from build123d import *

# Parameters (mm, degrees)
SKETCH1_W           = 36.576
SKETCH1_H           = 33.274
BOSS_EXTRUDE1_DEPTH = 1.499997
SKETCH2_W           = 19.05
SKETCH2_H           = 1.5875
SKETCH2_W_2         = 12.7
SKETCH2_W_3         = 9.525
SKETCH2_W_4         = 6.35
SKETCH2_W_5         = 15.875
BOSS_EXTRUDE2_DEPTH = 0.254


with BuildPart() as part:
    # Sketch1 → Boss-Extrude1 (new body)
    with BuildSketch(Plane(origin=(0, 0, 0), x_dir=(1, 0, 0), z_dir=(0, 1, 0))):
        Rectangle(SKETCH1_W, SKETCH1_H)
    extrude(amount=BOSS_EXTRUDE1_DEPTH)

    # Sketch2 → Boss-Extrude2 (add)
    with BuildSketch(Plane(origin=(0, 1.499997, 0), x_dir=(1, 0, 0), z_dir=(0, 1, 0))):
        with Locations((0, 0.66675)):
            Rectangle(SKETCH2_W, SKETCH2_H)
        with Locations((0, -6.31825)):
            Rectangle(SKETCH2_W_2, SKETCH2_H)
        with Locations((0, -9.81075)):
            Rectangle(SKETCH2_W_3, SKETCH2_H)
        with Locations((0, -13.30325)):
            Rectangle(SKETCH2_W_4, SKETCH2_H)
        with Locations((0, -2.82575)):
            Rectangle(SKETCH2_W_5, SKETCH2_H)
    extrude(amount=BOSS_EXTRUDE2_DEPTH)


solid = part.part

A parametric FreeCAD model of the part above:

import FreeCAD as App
import Part
import Sketcher
from FreeCAD import Vector
Q = App.Units.Quantity


def add_polygon(sketch, points):
    """Adds a closed chain of lines whose ends are joined by coincident constraints."""
    first, n = sketch.GeometryCount, len(points)
    for a, b in zip(points, points[1:] + points[:1]):
        sketch.addGeometry(Part.LineSegment(App.Vector(*a, 0), App.Vector(*b, 0)), False)
    for i in range(n):
        sketch.addConstraint(Sketcher.Constraint("Coincident", first + i, 2, first + (i + 1) % n, 1))

doc = App.newDocument("Part")
body = doc.addObject("PartDesign::Body", "Body")

# Sketch on XZ plane
sketch1 = body.newObject("Sketcher::SketchObject", "Sketch")
sketch1.AttachmentSupport = (doc.getObject("XZ_Plane"), [""])
sketch1.MapMode = "FlatFace"
add_polygon(sketch1, [(-18.288, -16.637), (-18.288, 16.637), (18.288, 16.637), (18.288, -16.637)])  # lines 0-3
sketch1.addConstraint([
    Sketcher.Constraint("Vertical", 0),
    Sketcher.Constraint("Horizontal", 1),
    Sketcher.Constraint("Vertical", 2),
    Sketcher.Constraint("Horizontal", 3),
    Sketcher.Constraint("Symmetric", 0, 2, 2, 2, -1, 1),
    Sketcher.Constraint("DistanceX", 1, 1, 1, 2, Q("1.44 in")),
    Sketcher.Constraint("DistanceY", 0, 1, 0, 2, Q("1.31 in")),
])
pad1 = body.newObject("PartDesign::Pad", "Pad")
pad1.Profile = sketch1
pad1.Length = 1.499997
pad1.Reversed = True

# Sketch on XZ plane
sketch2 = body.newObject("Sketcher::SketchObject", "Sketch001")
sketch2.AttachmentSupport = (doc.getObject("XZ_Plane"), [""])
sketch2.MapMode = "FlatFace"
sketch2.AttachmentOffset = App.Placement(Vector(0, 0, -1.499997), App.Rotation())
add_polygon(sketch2, [(-9.525, -1.4605), (-9.525, 0.127), (9.525, 0.127), (9.525, -1.4605)])  # lines 0-3
add_polygon(sketch2, [(-6.35, 5.5245), (-6.35, 7.112), (6.35, 7.112), (6.35, 5.5245)])  # lines 4-7
add_polygon(sketch2, [(-4.7625, 9.017), (-4.7625, 10.6045), (4.7625, 10.6045), (4.7625, 9.017)])  # lines 8-11
add_polygon(sketch2, [(-3.175, 12.5095), (-3.175, 14.097), (3.175, 14.097), (3.175, 12.5095)])  # lines 12-15
add_polygon(sketch2, [(-7.9375, 2.032), (-7.9375, 3.6195), (7.9375, 3.6195), (7.9375, 2.032)])  # lines 16-19
sketch2.addConstraint([
    Sketcher.Constraint("Vertical", 0),
    Sketcher.Constraint("Horizontal", 1),
    Sketcher.Constraint("Vertical", 2),
    Sketcher.Constraint("Horizontal", 3),
    Sketcher.Constraint("Vertical", 4),
    Sketcher.Constraint("Horizontal", 5),
    Sketcher.Constraint("Vertical", 6),
    Sketcher.Constraint("Horizontal", 7),
    Sketcher.Constraint("Vertical", 8),
    Sketcher.Constraint("Horizontal", 9),
    Sketcher.Constraint("Vertical", 10),
    Sketcher.Constraint("Horizontal", 11),
    Sketcher.Constraint("Vertical", 12),
    Sketcher.Constraint("Horizontal", 13),
    Sketcher.Constraint("Vertical", 14),
    Sketcher.Constraint("Horizontal", 15),
    Sketcher.Constraint("Vertical", 16),
    Sketcher.Constraint("Horizontal", 17),
    Sketcher.Constraint("Vertical", 18),
    Sketcher.Constraint("Horizontal", 19),
    Sketcher.Constraint("Equal", 2, 4),
    Sketcher.Constraint("Equal", 6, 8),
    Sketcher.Constraint("Equal", 10, 12),
    Sketcher.Constraint("Equal", 14, 16),
    Sketcher.Constraint("DistanceX", 5, 1, 5, 2, Q("0.5 in")),
    Sketcher.Constraint("DistanceX", 1, 1, 1, 2, Q("0.75 in")),
    Sketcher.Constraint("DistanceX", 13, 1, 13, 2, Q("0.25 in")),
    Sketcher.Constraint("DistanceY", 7, 2, 8, 2, Q("0.2 in")),
    Sketcher.Constraint("DistanceY", 11, 2, 12, 2, Q("0.2 in")),
    Sketcher.Constraint("DistanceY", 3, 2, 16, 2, Q("0.2 in")),
    Sketcher.Constraint("DistanceY", 18, 2, 5, 2, Q("0.2 in")),
    Sketcher.Constraint("DistanceX", 9, 1, 9, 2, Q("0.375 in")),
    Sketcher.Constraint("DistanceX", 17, 1, 17, 2, Q("0.625 in")),
    Sketcher.Constraint("DistanceY", 0, 1, 0, 2, Q("0.0625 in")),
    Sketcher.Constraint("DistanceX", 4, 2, -1, 1, Q("0.25 in")),
    Sketcher.Constraint("DistanceY", -1, 1, 4, 2, Q("0.28 in")),
    Sketcher.Constraint("DistanceX", 0, 2, -1, 1, Q("0.375 in")),
    Sketcher.Constraint("DistanceX", 8, 2, -1, 1, Q("0.1875 in")),
    Sketcher.Constraint("DistanceX", 12, 2, -1, 1, Q("0.125 in")),
    Sketcher.Constraint("DistanceX", 16, 2, -1, 1, Q("0.3125 in")),
])
pad2 = body.newObject("PartDesign::Pad", "Pad001")
pad2.Profile = sketch2
pad2.Length = Q("0.01 in")
pad2.Reversed = True

doc.recompute()
